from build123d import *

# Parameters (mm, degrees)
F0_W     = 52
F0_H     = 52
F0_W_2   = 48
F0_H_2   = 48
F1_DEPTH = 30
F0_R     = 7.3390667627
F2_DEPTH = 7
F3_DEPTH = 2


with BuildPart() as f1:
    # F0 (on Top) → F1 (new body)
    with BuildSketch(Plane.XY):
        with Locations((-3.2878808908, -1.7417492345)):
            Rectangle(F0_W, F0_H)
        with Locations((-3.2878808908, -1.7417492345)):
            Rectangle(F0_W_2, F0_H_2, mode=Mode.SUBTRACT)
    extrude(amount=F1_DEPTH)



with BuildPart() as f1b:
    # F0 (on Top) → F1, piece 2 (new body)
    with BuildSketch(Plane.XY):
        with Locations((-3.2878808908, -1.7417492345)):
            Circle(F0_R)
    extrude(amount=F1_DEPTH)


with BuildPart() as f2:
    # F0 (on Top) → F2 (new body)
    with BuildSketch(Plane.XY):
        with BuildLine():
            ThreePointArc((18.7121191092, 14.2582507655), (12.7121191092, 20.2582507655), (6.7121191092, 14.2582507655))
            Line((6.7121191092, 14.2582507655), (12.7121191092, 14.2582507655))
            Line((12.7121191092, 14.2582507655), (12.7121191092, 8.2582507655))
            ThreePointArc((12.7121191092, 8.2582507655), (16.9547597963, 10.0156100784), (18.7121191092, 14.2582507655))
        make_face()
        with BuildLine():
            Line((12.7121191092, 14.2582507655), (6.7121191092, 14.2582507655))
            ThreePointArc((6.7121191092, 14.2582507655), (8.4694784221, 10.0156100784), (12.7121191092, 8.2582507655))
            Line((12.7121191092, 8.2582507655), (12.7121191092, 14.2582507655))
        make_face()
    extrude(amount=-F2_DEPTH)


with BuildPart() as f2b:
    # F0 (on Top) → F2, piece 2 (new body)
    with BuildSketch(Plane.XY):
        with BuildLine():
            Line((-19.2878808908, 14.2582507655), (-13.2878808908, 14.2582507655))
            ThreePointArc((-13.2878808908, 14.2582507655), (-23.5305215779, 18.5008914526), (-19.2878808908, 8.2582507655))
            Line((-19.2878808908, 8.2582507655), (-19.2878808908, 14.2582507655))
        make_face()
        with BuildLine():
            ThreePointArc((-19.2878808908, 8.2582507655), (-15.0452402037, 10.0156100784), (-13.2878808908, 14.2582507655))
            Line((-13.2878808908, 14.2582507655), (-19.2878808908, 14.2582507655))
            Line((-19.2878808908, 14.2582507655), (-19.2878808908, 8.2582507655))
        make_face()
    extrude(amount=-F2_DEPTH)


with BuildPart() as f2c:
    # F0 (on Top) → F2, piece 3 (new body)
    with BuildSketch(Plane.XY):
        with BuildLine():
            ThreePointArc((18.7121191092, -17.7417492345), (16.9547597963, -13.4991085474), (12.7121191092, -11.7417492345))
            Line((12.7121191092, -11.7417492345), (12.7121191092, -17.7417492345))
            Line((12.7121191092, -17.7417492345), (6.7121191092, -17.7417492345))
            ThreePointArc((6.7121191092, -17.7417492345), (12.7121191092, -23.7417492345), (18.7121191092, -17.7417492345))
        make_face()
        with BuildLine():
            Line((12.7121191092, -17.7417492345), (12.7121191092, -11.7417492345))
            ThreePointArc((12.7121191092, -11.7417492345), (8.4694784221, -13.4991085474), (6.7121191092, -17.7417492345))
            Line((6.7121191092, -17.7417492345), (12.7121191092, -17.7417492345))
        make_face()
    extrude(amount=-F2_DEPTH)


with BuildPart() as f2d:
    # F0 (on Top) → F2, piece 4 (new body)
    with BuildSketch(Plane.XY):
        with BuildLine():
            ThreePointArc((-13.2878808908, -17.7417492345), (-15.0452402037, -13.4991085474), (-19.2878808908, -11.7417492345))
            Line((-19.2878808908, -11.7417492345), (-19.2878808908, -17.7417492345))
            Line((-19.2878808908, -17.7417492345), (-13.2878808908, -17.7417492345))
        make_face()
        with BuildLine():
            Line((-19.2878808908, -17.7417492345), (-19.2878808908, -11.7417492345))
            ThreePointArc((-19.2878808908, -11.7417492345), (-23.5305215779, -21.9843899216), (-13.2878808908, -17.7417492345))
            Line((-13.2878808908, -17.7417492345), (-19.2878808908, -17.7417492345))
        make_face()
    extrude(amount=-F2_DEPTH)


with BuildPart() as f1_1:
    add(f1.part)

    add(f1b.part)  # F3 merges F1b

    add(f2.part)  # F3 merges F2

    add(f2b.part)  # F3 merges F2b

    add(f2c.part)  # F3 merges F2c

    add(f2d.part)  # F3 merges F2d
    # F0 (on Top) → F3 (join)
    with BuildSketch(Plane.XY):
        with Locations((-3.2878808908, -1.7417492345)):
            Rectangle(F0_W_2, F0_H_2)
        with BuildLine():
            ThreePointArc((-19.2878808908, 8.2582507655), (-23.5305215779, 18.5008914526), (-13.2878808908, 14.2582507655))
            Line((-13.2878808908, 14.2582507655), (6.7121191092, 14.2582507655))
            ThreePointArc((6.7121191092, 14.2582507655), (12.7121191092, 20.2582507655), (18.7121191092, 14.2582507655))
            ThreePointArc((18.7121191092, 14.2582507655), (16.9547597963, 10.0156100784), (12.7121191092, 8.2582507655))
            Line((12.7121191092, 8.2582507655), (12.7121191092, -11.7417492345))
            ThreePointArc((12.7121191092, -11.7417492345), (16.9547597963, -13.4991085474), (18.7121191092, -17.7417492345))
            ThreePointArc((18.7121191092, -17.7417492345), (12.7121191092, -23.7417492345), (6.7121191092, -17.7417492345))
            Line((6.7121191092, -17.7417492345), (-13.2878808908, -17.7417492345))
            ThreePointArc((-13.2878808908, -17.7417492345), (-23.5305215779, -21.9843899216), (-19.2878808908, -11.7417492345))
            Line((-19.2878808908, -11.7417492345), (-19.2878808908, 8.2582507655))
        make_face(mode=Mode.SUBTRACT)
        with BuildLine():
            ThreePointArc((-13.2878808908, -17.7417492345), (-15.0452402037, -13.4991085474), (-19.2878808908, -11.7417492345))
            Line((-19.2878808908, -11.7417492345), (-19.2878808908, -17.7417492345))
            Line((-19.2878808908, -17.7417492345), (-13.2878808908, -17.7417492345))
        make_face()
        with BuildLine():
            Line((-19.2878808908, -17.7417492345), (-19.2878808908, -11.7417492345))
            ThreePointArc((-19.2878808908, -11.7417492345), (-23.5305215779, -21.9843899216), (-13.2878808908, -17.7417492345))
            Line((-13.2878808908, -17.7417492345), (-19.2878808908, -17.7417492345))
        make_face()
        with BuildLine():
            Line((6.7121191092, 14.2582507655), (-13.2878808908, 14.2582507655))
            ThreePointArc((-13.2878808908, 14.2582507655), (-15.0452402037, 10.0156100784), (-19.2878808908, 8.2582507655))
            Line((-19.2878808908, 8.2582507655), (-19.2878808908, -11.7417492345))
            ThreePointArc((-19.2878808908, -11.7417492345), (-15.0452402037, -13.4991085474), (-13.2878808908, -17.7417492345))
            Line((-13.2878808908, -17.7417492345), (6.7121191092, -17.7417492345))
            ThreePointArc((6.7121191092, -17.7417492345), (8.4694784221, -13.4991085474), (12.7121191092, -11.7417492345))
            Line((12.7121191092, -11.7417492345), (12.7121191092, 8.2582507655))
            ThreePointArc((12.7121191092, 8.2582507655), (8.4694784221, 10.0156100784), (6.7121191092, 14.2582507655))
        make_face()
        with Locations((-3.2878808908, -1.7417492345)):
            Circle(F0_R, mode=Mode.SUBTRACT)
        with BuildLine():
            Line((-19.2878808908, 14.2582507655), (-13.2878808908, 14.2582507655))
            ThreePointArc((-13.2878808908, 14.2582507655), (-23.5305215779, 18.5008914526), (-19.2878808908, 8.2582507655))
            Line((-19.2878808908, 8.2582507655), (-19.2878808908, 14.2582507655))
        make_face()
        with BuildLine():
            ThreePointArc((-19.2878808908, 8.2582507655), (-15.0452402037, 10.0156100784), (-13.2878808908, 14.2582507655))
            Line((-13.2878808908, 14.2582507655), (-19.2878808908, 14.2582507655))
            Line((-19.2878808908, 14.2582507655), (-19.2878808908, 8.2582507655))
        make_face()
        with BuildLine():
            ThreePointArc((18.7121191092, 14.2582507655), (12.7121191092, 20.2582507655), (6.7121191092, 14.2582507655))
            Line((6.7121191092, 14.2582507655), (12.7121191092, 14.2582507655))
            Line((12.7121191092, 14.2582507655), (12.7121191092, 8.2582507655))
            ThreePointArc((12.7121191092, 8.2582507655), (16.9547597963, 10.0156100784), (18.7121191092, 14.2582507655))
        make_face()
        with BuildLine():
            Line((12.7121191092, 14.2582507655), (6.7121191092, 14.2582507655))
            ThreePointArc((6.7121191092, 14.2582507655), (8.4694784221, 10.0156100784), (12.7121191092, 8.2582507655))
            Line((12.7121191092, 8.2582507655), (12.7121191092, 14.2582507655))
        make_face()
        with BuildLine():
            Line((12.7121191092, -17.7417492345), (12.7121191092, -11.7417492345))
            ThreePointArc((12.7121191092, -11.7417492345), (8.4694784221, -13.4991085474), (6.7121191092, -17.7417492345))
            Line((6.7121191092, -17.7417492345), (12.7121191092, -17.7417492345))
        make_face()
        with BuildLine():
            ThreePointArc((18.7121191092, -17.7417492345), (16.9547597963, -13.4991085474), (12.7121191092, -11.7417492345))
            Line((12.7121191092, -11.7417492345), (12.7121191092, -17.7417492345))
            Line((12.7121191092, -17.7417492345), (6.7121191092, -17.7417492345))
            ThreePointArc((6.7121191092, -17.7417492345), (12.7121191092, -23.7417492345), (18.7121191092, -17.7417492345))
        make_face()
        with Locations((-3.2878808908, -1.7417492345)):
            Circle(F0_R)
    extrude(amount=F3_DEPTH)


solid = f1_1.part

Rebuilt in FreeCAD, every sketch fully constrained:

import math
import FreeCAD as App
import Part
import Sketcher

V = App.Vector


def add_polygon(sketch, points):
    """Adds a closed chain of lines whose ends are joined by coincident constraints."""
    first, n = sketch.GeometryCount, len(points)
    for a, b in zip(points, points[1:] + points[:1]):
        sketch.addGeometry(Part.LineSegment(App.Vector(*a, 0), App.Vector(*b, 0)), False)
    for i in range(n):
        sketch.addConstraint(Sketcher.Constraint("Coincident", first + i, 2, first + (i + 1) % n, 1))

doc = App.newDocument("Part")
params = doc.addObject("Spreadsheet::Sheet", "Params")
for row, (alias, value) in enumerate([
    ("sketch1_width", "52 mm"),
    ("sketch1_width2", "48 mm"),
    ("pad1_length", "30 mm"),
    ("pad2_length", "30 mm"),
    ("sketch3_radius", "6 mm"),
    ("pad3_length", "7 mm"),
    ("sketch4_radius", "6 mm"),
    ("pad4_length", "7 mm"),
    ("sketch5_radius", "6 mm"),
    ("pad5_length", "7 mm"),
    ("sketch6_radius", "6 mm"),
    ("pad6_length", "7 mm"),
    ("sketch7_width", "48 mm"),
    ("pad7_length", "2 mm"),
], start=1):
    params.set(f"A{row}", alias)
    params.set(f"B{row}", "=" + value)
    params.setAlias(f"B{row}", alias)

body = doc.addObject("PartDesign::Body", "Body")

# Sketch on XY plane
sketch1 = body.newObject("Sketcher::SketchObject", "Sketch")
sketch1.AttachmentSupport = (doc.getObject("XY_Plane"), [""])
sketch1.MapMode = "FlatFace"
add_polygon(sketch1, [(-29, 24), (-29, -28), (23, -28), (23, 24)])  # lines 0-3
add_polygon(sketch1, [(21, -26), (-27, -26), (-27, 22), (21, 22)])  # lines 4-7
sketch1.addConstraint([
    Sketcher.Constraint("Vertical", 0),
    Sketcher.Constraint("Horizontal", 1),
    Sketcher.Constraint("Vertical", 2),
    Sketcher.Constraint("Horizontal", 3),
    Sketcher.Constraint("Horizontal", 4),
    Sketcher.Constraint("Vertical", 5),
    Sketcher.Constraint("Horizontal", 6),
    Sketcher.Constraint("Vertical", 7),
    Sketcher.Constraint("Equal", 3, 0),
    Sketcher.Constraint("Equal", 6, 5),
    Sketcher.Constraint("DistanceX", 1, 1, 1, 2, 52.0),
    Sketcher.Constraint("DistanceX", 4, 2, 4, 1, 48.0),
    Sketcher.Constraint("DistanceX", 0, 2, 4, 2, 2.0),
    Sketcher.Constraint("DistanceY", 0, 2, 4, 2, 2.0),
    Sketcher.Constraint("DistanceX", 0, 2, -1, 1, 29.287881),
    Sketcher.Constraint("DistanceY", 0, 2, -1, 1, 27.741749),
])
sketch1.setExpression("Constraints[18]", "Params.sketch1_width")
sketch1.setExpression("Constraints[19]", "Params.sketch1_width2")
pad1 = body.newObject("PartDesign::Pad", "Pad")
pad1.Profile = sketch1
pad1.setExpression("Length", "Params.pad1_length")
body2 = doc.addObject("PartDesign::Body", "Body001")

# Sketch on XY plane
sketch2 = body2.newObject("Sketcher::SketchObject", "Sketch001")
sketch2.AttachmentSupport = (doc.getObject("XY_Plane001"), [""])
sketch2.MapMode = "FlatFace"
sketch2.addGeometry(Part.Circle(V(-3, -2, 0), V(0, 0, 1), 7), False)
sketch2.addConstraint([
    Sketcher.Constraint("Diameter", 0, 14.678134),
    Sketcher.Constraint("DistanceX", 0, 3, -1, 1, 3.287881),
    Sketcher.Constraint("DistanceY", 0, 3, -1, 1, 1.741749),
])
pad2 = body2.newObject("PartDesign::Pad", "Pad001")
pad2.Profile = sketch2
pad2.setExpression("Length", "Params.pad2_length")
body3 = doc.addObject("PartDesign::Body", "Body002")

# Sketch on XY plane
sketch3 = body3.newObject("Sketcher::SketchObject", "Sketch002")
sketch3.AttachmentSupport = (doc.getObject("XY_Plane002"), [""])
sketch3.MapMode = "FlatFace"
sketch3.addGeometry([
    Part.ArcOfCircle(Part.Circle(V(13, 14, 0), V(0, 0, 1), 6), math.radians(0), math.radians(180)),
    Part.ArcOfCircle(Part.Circle(V(13, 14, 0), V(0, 0, 1), 6), math.radians(-180), math.radians(-90)),
    Part.ArcOfCircle(Part.Circle(V(13, 14, 0), V(0, 0, 1), 6), math.radians(-90), math.radians(0)),
], False)
sketch3.addConstraint([
    Sketcher.Constraint("Tangent", 0, 2, 1, 1),
    Sketcher.Constraint("Tangent", 1, 2, 2, 1),
    Sketcher.Constraint("Tangent", 2, 2, 0, 1),
    Sketcher.Constraint("Horizontal", 2, 3, 0, 2),
    Sketcher.Constraint("Horizontal", 0, 2, 2, 2),
    Sketcher.Constraint("Vertical", 2, 3, 1, 2),
    Sketcher.Constraint("Radius", 0, 6.0),
    Sketcher.Constraint("DistanceX", -1, 1, 0, 3, 12.712119),
    Sketcher.Constraint("DistanceY", -1, 1, 0, 3, 14.258251),
])
sketch3.setExpression("Constraints[6]", "Params.sketch3_radius")
pad3 = body3.newObject("PartDesign::Pad", "Pad002")
pad3.Profile = sketch3
pad3.setExpression("Length", "Params.pad3_length")
pad3.Reversed = True
body4 = doc.addObject("PartDesign::Body", "Body003")

# Sketch on XY plane
sketch4 = body4.newObject("Sketcher::SketchObject", "Sketch003")
sketch4.AttachmentSupport = (doc.getObject("XY_Plane003"), [""])
sketch4.MapMode = "FlatFace"
sketch4.addGeometry([
    Part.ArcOfCircle(Part.Circle(V(-19, 14, 0), V(0, 0, 1), 6), math.radians(0), math.radians(270)),
    Part.ArcOfCircle(Part.Circle(V(-19, 14, 0), V(0, 0, 1), 6), math.radians(-90), math.radians(0)),
], False)
sketch4.addConstraint([
    Sketcher.Constraint("Tangent", 0, 1, 1, 2),
    Sketcher.Constraint("Coincident", 1, 1, 0, 2),
    Sketcher.Constraint("Horizontal", 1, 3, 0, 1),
    Sketcher.Constraint("Vertical", 0, 3, 1, 1),
    Sketcher.Constraint("Radius", 0, 6.0),
    Sketcher.Constraint("DistanceX", 0, 3, -1, 1, 19.287881),
    Sketcher.Constraint("DistanceY", -1, 1, 0, 3, 14.258251),
])
sketch4.setExpression("Constraints[4]", "Params.sketch4_radius")
pad4 = body4.newObject("PartDesign::Pad", "Pad003")
pad4.Profile = sketch4
pad4.setExpression("Length", "Params.pad4_length")
pad4.Reversed = True
body5 = doc.addObject("PartDesign::Body", "Body004")

# Sketch on XY plane
sketch5 = body5.newObject("Sketcher::SketchObject", "Sketch004")
sketch5.AttachmentSupport = (doc.getObject("XY_Plane004"), [""])
sketch5.MapMode = "FlatFace"
sketch5.addGeometry([
    Part.ArcOfCircle(Part.Circle(V(13, -18, 0), V(0, 0, 1), 6), math.radians(0), math.radians(90)),
    Part.ArcOfCircle(Part.Circle(V(13, -18, 0), V(0, 0, 1), 6), math.radians(90), math.radians(180)),
    Part.ArcOfCircle(Part.Circle(V(13, -18, 0), V(0, 0, 1), 6), math.radians(180), math.radians(360)),
], False)
sketch5.addConstraint([
    Sketcher.Constraint("Tangent", 0, 2, 1, 1),
    Sketcher.Constraint("Tangent", 1, 2, 2, 1),
    Sketcher.Constraint("Tangent", 2, 2, 0, 1),
    Sketcher.Constraint("Horizontal", 2, 3, 1, 2),
    Sketcher.Constraint("Horizontal", 1, 2, 2, 2),
    Sketcher.Constraint("Vertical", 2, 3, 0, 2),
    Sketcher.Constraint("Radius", 0, 6.0),
    Sketcher.Constraint("DistanceX", -1, 1, 0, 3, 12.712119),
    Sketcher.Constraint("DistanceY", 0, 3, -1, 1, 17.741749),
])
sketch5.setExpression("Constraints[6]", "Params.sketch5_radius")
pad5 = body5.newObject("PartDesign::Pad", "Pad004")
pad5.Profile = sketch5
pad5.setExpression("Length", "Params.pad5_length")
pad5.Reversed = True
body6 = doc.addObject("PartDesign::Body", "Body005")

# Sketch on XY plane
sketch6 = body6.newObject("Sketcher::SketchObject", "Sketch005")
sketch6.AttachmentSupport = (doc.getObject("XY_Plane005"), [""])
sketch6.MapMode = "FlatFace"
sketch6.addGeometry([
    Part.ArcOfCircle(Part.Circle(V(-19, -18, 0), V(0, 0, 1), 6), math.radians(0), math.radians(90)),
    Part.ArcOfCircle(Part.Circle(V(-19, -18, 0), V(0, 0, 1), 6), math.radians(90), math.radians(360)),
], False)
sketch6.addConstraint([
    Sketcher.Constraint("Tangent", 0, 1, 1, 2),
    Sketcher.Constraint("Coincident", 1, 1, 0, 2),
    Sketcher.Constraint("Horizontal", 1, 3, 0, 1),
    Sketcher.Constraint("Vertical", 0, 3, 1, 1),
    Sketcher.Constraint("Radius", 0, 6.0),
    Sketcher.Constraint("DistanceX", 0, 3, -1, 1, 19.287881),
    Sketcher.Constraint("DistanceY", 0, 3, -1, 1, 17.741749),
])
sketch6.setExpression("Constraints[4]", "Params.sketch6_radius")
pad6 = body6.newObject("PartDesign::Pad", "Pad005")
pad6.Profile = sketch6
pad6.setExpression("Length", "Params.pad6_length")
pad6.Reversed = True
body.AllowCompound = True
doc.recompute()

boolean = body.newObject("PartDesign::Boolean", "Boolean")
boolean.Type = "Fuse"
boolean.addObjects([body2])
doc.recompute()

boolean2 = body.newObject("PartDesign::Boolean", "Boolean001")
boolean2.Type = "Fuse"
boolean2.addObjects([body3])
doc.recompute()

boolean3 = body.newObject("PartDesign::Boolean", "Boolean002")
boolean3.Type = "Fuse"
boolean3.addObjects([body4])
doc.recompute()

boolean4 = body.newObject("PartDesign::Boolean", "Boolean003")
boolean4.Type = "Fuse"
boolean4.addObjects([body5])
doc.recompute()

boolean5 = body.newObject("PartDesign::Boolean", "Boolean004")
boolean5.Type = "Fuse"
boolean5.addObjects([body6])

# Sketch on XY plane
sketch7 = body.newObject("Sketcher::SketchObject", "Sketch006")
sketch7.AttachmentSupport = (doc.getObject("XY_Plane"), [""])
sketch7.MapMode = "FlatFace"
add_polygon(sketch7, [(-27, 22), (-27, -26), (21, -26), (21, 22)])  # lines 0-3
sketch7.addConstraint([
    Sketcher.Constraint("Vertical", 0),
    Sketcher.Constraint("Horizontal", 1),
    Sketcher.Constraint("Vertical", 2),
    Sketcher.Constraint("Horizontal", 3),
    Sketcher.Constraint("Equal", 3, 0),
    Sketcher.Constraint("DistanceX", 1, 1, 1, 2, 48.0),
    Sketcher.Constraint("DistanceX", 0, 2, -1, 1, 27.287881),
    Sketcher.Constraint("DistanceY", 0, 2, -1, 1, 25.741749),
])
sketch7.setExpression("Constraints[9]", "Params.sketch7_width")
pad7 = body.newObject("PartDesign::Pad", "Pad006")
pad7.Profile = sketch7
pad7.setExpression("Length", "Params.pad7_length")

doc.recompute()
